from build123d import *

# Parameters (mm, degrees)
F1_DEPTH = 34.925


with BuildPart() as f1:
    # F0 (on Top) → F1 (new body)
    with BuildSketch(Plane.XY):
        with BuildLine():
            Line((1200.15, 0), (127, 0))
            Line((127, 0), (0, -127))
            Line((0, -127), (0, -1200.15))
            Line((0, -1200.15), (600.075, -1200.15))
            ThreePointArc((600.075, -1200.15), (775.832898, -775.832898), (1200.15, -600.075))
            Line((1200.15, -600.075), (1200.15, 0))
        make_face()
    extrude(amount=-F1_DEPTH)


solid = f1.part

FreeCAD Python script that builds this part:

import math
import FreeCAD as App
import Part
import Sketcher
from FreeCAD import Vector
Q = App.Units.Quantity

doc = App.newDocument("Part")
body = doc.addObject("PartDesign::Body", "Body")

sketch1 = doc.addObject("Sketcher::SketchObject", "Sketch")
body.addObject(sketch1)
sketch1.AttachmentSupport = (doc.XY_Plane, [""])
sketch1.MapMode = "FlatFace"
sketch1.addGeometry([
    Part.LineSegment(Vector(1200, 0, 0), Vector(127, 0, 0)),
    Part.LineSegment(Vector(127, 0, 0), Vector(0, -127, 0)),
    Part.LineSegment(Vector(0, -127, 0), Vector(0, -1200, 0)),
    Part.LineSegment(Vector(0, -1200, 0), Vector(600, -1200, 0)),
    Part.ArcOfCircle(Part.Circle(Vector(1200, -1200, 0), Vector(0, 0, 1), 600), math.radians(90), math.radians(180)),
    Part.LineSegment(Vector(1200, -600, 0), Vector(1200, 0, 0)),
], False)
sketch1.addConstraint([
    Sketcher.Constraint("Coincident", 0, 2, 1, 1),
    Sketcher.Constraint("Coincident", 1, 2, 2, 1),
    Sketcher.Constraint("Coincident", 2, 2, 3, 1),
    Sketcher.Constraint("Coincident", 3, 2, 4, 2),
    Sketcher.Constraint("Coincident", 4, 1, 5, 1),
    Sketcher.Constraint("Coincident", 5, 2, 0, 1),
    Sketcher.Constraint("Horizontal", 0),
    Sketcher.Constraint("Vertical", 2),
    Sketcher.Constraint("Horizontal", 3),
    Sketcher.Constraint("Vertical", 5),
    Sketcher.Constraint("PointOnObject", 0, 2, -1),
    Sketcher.Constraint("PointOnObject", 1, 2, -2),
    Sketcher.Constraint("Horizontal", 4, 3, 2, 2),
    Sketcher.Constraint("Equal", 0, 2),
    Sketcher.Constraint("Equal", 3, 5),
    Sketcher.Constraint("DistanceX", -1, 1, 0, 2, Q("5 in")),
    Sketcher.Constraint("DistanceY", 1, 2, -1, 1, Q("5 in")),
    Sketcher.Constraint("Radius", 4, Q("23.625 in")),
    Sketcher.Constraint("DistanceX", 0, 2, 0, 1, Q("42.25 in")),
])
pad1 = doc.addObject("PartDesign::Pad", "Pad")
body.addObject(pad1)
pad1.Profile = sketch1
pad1.Length = Q("1.375 in")
pad1.Reversed = True

doc.recompute()
